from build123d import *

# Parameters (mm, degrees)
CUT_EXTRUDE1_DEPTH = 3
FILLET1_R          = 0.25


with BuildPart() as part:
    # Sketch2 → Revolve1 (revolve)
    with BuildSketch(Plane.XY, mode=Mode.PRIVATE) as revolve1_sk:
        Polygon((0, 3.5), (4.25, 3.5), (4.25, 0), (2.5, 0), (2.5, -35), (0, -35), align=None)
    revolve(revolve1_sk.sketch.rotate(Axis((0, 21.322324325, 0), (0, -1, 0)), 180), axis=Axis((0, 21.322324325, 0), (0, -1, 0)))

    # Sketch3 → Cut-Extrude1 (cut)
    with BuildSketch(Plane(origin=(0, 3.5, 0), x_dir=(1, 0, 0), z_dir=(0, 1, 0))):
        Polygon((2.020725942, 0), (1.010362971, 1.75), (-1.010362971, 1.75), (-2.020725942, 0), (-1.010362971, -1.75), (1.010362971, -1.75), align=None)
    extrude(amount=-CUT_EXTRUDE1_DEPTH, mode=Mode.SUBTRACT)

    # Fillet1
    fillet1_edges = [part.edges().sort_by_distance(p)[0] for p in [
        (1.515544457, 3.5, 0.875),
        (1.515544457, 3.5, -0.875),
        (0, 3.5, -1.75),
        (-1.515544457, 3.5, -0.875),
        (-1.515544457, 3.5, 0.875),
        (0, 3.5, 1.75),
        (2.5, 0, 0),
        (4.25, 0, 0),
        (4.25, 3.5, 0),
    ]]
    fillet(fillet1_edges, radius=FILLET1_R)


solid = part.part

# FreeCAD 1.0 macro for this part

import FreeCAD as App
import Part
import Sketcher
Q = App.Units.Quantity


def edges_at(feature, points):
    """Names of the edges that pass closest to the given points."""
    edges = feature.Shape.Edges
    near = lambda p: min(range(len(edges)), key=lambda i: edges[i].distToShape(Part.Vertex(*p))[0])
    return sorted({f"Edge{near(p) + 1}" for p in points})

doc = App.newDocument("Part")
params = doc.addObject("Spreadsheet::Sheet", "Params")
for row, (alias, value) in enumerate([
    ("sketch1_height", "35 mm"),
    ("sketch1_width", "2.5 mm"),
    ("sketch1_height2", "38.5 mm"),
    ("sketch1_width2", "4.25 mm"),
    ("revolution_angle", "360 deg"),
    ("pocket1_length", "3 mm"),
    ("fillet_radius", "0.25 mm"),
], start=1):
    params.set(f"A{row}", alias)
    params.set(f"B{row}", "=" + value)
    params.setAlias(f"B{row}", alias)

body = doc.addObject("PartDesign::Body", "Body")

# Sketch on XY plane
sketch1 = body.newObject("Sketcher::SketchObject", "Sketch")
sketch1.AttachmentSupport = (doc.getObject("XY_Plane"), [""])
sketch1.MapMode = "FlatFace"
sketch1.addGeometry(Part.LineSegment(App.Vector(4.2, 3.5, 0), App.Vector(0, 3.5, 0)), False)
sketch1.addGeometry(Part.LineSegment(App.Vector(0, 3.5, 0), App.Vector(0, -35, 0)), False)
sketch1.addGeometry(Part.LineSegment(App.Vector(0, -35, 0), App.Vector(2.5, -35, 0)), False)
sketch1.addGeometry(Part.LineSegment(App.Vector(2.5, -35, 0), App.Vector(2.5, 0, 0)), False)
sketch1.addGeometry(Part.LineSegment(App.Vector(2.5, 0, 0), App.Vector(4.2, 0, 0)), False)
sketch1.addGeometry(Part.LineSegment(App.Vector(4.2, 0, 0), App.Vector(4.2, 3.5, 0)), False)
sketch1.addConstraint(Sketcher.Constraint("Coincident", 0, 2, 1, 1))
sketch1.addConstraint(Sketcher.Constraint("Coincident", 1, 2, 2, 1))
sketch1.addConstraint(Sketcher.Constraint("Coincident", 2, 2, 3, 1))
sketch1.addConstraint(Sketcher.Constraint("Coincident", 3, 2, 4, 1))
sketch1.addConstraint(Sketcher.Constraint("Coincident", 4, 2, 5, 1))
sketch1.addConstraint(Sketcher.Constraint("Coincident", 5, 2, 0, 1))
sketch1.addConstraint(Sketcher.Constraint("Horizontal", 0))
sketch1.addConstraint(Sketcher.Constraint("Vertical", 1))
sketch1.addConstraint(Sketcher.Constraint("Horizontal", 2))
sketch1.addConstraint(Sketcher.Constraint("Vertical", 3))
sketch1.addConstraint(Sketcher.Constraint("Horizontal", 4))
sketch1.addConstraint(Sketcher.Constraint("Vertical", 5))
sketch1.addConstraint(Sketcher.Constraint("PointOnObject", 0, 2, -2))
sketch1.addConstraint(Sketcher.Constraint("PointOnObject", 3, 2, -1))
sketch1.addConstraint(Sketcher.Constraint("DistanceY", 3, 1, 3, 2, Q("35 mm")))
sketch1.addConstraint(Sketcher.Constraint("DistanceX", 2, 1, 2, 2, Q("2.5 mm")))
sketch1.addConstraint(Sketcher.Constraint("DistanceY", 1, 2, 1, 1, Q("38.5 mm")))
sketch1.addConstraint(Sketcher.Constraint("DistanceX", 0, 2, 0, 1, Q("4.25 mm")))
sketch1.setExpression("Constraints[14]", "Params.sketch1_height")
sketch1.setExpression("Constraints[15]", "Params.sketch1_width")
sketch1.setExpression("Constraints[16]", "Params.sketch1_height2")
sketch1.setExpression("Constraints[17]", "Params.sketch1_width2")
revolution = body.newObject("PartDesign::Revolution", "Revolution")
revolution.Profile = sketch1
revolution.ReferenceAxis = (sketch1, ["V_Axis"])
revolution.setExpression("Angle", "Params.revolution_angle")

# Sketch on XZ plane
sketch2 = body.newObject("Sketcher::SketchObject", "Sketch001")
sketch2.AttachmentSupport = (doc.getObject("XZ_Plane"), [""])
sketch2.MapMode = "FlatFace"
sketch2.AttachmentOffset = App.Placement(App.Vector(0, 0, -3.5), App.Rotation())
sketch2.addGeometry(Part.LineSegment(App.Vector(2, 0, 0), App.Vector(1, -1.8, 0)), False)
sketch2.addGeometry(Part.LineSegment(App.Vector(1, -1.8, 0), App.Vector(-1, -1.8, 0)), False)
sketch2.addGeometry(Part.LineSegment(App.Vector(-1, -1.8, 0), App.Vector(-2, 0, 0)), False)
sketch2.addGeometry(Part.LineSegment(App.Vector(-2, 0, 0), App.Vector(-1, 1.8, 0)), False)
sketch2.addGeometry(Part.LineSegment(App.Vector(-1, 1.8, 0), App.Vector(1, 1.8, 0)), False)
sketch2.addGeometry(Part.LineSegment(App.Vector(1, 1.8, 0), App.Vector(2, 0, 0)), False)
sketch2.addConstraint(Sketcher.Constraint("Coincident", 0, 2, 1, 1))
sketch2.addConstraint(Sketcher.Constraint("Coincident", 1, 2, 2, 1))
sketch2.addConstraint(Sketcher.Constraint("Coincident", 2, 2, 3, 1))
sketch2.addConstraint(Sketcher.Constraint("Coincident", 3, 2, 4, 1))
sketch2.addConstraint(Sketcher.Constraint("Coincident", 4, 2, 5, 1))
sketch2.addConstraint(Sketcher.Constraint("Coincident", 5, 2, 0, 1))
sketch2.addConstraint(Sketcher.Constraint("Horizontal", 1))
sketch2.addConstraint(Sketcher.Constraint("Horizontal", 4))
sketch2.addConstraint(Sketcher.Constraint("Symmetric", 0, 2, 3, 2, -1, 1))
sketch2.addConstraint(Sketcher.Constraint("Symmetric", 2, 2, 5, 2, -1, 1))
sketch2.addConstraint(Sketcher.Constraint("PointOnObject", 2, 2, -1))
sketch2.addConstraint(Sketcher.Constraint("Parallel", 2, 5))
sketch2.addConstraint(Sketcher.Constraint("Vertical", 1, 2, 3, 2))
sketch2.addConstraint(Sketcher.Constraint("Angle", 0, Q("-120 deg")))
sketch2.addConstraint(Sketcher.Constraint("DistanceY", 1, 2, 3, 2, Q("3.5 mm")))
sketch2.addConstraint(Sketcher.Constraint("DistanceX", 1, 2, 1, 1, Q("2.020726 mm")))
pocket1 = body.newObject("PartDesign::Pocket", "Pocket")
pocket1.Profile = sketch2
pocket1.setExpression("Length", "Params.pocket1_length")
pocket1.Reversed = True
doc.recompute()

fillet = body.newObject("PartDesign::Fillet", "Fillet")
fillet.Base = (pocket1, edges_at(pocket1, [
    (1.516, 3.5, 0.875),
    (1.516, 3.5, -0.875),
    (0, 3.5, -1.75),
    (-1.516, 3.5, -0.875),
    (-1.516, 3.5, 0.875),
    (0, 3.5, 1.75),
    (2.5, 0, 0),
    (4.25, 0, 0),
    (4.25, 3.5, 0),
]))
fillet.setExpression("Radius", "Params.fillet_radius")

doc.recompute()
